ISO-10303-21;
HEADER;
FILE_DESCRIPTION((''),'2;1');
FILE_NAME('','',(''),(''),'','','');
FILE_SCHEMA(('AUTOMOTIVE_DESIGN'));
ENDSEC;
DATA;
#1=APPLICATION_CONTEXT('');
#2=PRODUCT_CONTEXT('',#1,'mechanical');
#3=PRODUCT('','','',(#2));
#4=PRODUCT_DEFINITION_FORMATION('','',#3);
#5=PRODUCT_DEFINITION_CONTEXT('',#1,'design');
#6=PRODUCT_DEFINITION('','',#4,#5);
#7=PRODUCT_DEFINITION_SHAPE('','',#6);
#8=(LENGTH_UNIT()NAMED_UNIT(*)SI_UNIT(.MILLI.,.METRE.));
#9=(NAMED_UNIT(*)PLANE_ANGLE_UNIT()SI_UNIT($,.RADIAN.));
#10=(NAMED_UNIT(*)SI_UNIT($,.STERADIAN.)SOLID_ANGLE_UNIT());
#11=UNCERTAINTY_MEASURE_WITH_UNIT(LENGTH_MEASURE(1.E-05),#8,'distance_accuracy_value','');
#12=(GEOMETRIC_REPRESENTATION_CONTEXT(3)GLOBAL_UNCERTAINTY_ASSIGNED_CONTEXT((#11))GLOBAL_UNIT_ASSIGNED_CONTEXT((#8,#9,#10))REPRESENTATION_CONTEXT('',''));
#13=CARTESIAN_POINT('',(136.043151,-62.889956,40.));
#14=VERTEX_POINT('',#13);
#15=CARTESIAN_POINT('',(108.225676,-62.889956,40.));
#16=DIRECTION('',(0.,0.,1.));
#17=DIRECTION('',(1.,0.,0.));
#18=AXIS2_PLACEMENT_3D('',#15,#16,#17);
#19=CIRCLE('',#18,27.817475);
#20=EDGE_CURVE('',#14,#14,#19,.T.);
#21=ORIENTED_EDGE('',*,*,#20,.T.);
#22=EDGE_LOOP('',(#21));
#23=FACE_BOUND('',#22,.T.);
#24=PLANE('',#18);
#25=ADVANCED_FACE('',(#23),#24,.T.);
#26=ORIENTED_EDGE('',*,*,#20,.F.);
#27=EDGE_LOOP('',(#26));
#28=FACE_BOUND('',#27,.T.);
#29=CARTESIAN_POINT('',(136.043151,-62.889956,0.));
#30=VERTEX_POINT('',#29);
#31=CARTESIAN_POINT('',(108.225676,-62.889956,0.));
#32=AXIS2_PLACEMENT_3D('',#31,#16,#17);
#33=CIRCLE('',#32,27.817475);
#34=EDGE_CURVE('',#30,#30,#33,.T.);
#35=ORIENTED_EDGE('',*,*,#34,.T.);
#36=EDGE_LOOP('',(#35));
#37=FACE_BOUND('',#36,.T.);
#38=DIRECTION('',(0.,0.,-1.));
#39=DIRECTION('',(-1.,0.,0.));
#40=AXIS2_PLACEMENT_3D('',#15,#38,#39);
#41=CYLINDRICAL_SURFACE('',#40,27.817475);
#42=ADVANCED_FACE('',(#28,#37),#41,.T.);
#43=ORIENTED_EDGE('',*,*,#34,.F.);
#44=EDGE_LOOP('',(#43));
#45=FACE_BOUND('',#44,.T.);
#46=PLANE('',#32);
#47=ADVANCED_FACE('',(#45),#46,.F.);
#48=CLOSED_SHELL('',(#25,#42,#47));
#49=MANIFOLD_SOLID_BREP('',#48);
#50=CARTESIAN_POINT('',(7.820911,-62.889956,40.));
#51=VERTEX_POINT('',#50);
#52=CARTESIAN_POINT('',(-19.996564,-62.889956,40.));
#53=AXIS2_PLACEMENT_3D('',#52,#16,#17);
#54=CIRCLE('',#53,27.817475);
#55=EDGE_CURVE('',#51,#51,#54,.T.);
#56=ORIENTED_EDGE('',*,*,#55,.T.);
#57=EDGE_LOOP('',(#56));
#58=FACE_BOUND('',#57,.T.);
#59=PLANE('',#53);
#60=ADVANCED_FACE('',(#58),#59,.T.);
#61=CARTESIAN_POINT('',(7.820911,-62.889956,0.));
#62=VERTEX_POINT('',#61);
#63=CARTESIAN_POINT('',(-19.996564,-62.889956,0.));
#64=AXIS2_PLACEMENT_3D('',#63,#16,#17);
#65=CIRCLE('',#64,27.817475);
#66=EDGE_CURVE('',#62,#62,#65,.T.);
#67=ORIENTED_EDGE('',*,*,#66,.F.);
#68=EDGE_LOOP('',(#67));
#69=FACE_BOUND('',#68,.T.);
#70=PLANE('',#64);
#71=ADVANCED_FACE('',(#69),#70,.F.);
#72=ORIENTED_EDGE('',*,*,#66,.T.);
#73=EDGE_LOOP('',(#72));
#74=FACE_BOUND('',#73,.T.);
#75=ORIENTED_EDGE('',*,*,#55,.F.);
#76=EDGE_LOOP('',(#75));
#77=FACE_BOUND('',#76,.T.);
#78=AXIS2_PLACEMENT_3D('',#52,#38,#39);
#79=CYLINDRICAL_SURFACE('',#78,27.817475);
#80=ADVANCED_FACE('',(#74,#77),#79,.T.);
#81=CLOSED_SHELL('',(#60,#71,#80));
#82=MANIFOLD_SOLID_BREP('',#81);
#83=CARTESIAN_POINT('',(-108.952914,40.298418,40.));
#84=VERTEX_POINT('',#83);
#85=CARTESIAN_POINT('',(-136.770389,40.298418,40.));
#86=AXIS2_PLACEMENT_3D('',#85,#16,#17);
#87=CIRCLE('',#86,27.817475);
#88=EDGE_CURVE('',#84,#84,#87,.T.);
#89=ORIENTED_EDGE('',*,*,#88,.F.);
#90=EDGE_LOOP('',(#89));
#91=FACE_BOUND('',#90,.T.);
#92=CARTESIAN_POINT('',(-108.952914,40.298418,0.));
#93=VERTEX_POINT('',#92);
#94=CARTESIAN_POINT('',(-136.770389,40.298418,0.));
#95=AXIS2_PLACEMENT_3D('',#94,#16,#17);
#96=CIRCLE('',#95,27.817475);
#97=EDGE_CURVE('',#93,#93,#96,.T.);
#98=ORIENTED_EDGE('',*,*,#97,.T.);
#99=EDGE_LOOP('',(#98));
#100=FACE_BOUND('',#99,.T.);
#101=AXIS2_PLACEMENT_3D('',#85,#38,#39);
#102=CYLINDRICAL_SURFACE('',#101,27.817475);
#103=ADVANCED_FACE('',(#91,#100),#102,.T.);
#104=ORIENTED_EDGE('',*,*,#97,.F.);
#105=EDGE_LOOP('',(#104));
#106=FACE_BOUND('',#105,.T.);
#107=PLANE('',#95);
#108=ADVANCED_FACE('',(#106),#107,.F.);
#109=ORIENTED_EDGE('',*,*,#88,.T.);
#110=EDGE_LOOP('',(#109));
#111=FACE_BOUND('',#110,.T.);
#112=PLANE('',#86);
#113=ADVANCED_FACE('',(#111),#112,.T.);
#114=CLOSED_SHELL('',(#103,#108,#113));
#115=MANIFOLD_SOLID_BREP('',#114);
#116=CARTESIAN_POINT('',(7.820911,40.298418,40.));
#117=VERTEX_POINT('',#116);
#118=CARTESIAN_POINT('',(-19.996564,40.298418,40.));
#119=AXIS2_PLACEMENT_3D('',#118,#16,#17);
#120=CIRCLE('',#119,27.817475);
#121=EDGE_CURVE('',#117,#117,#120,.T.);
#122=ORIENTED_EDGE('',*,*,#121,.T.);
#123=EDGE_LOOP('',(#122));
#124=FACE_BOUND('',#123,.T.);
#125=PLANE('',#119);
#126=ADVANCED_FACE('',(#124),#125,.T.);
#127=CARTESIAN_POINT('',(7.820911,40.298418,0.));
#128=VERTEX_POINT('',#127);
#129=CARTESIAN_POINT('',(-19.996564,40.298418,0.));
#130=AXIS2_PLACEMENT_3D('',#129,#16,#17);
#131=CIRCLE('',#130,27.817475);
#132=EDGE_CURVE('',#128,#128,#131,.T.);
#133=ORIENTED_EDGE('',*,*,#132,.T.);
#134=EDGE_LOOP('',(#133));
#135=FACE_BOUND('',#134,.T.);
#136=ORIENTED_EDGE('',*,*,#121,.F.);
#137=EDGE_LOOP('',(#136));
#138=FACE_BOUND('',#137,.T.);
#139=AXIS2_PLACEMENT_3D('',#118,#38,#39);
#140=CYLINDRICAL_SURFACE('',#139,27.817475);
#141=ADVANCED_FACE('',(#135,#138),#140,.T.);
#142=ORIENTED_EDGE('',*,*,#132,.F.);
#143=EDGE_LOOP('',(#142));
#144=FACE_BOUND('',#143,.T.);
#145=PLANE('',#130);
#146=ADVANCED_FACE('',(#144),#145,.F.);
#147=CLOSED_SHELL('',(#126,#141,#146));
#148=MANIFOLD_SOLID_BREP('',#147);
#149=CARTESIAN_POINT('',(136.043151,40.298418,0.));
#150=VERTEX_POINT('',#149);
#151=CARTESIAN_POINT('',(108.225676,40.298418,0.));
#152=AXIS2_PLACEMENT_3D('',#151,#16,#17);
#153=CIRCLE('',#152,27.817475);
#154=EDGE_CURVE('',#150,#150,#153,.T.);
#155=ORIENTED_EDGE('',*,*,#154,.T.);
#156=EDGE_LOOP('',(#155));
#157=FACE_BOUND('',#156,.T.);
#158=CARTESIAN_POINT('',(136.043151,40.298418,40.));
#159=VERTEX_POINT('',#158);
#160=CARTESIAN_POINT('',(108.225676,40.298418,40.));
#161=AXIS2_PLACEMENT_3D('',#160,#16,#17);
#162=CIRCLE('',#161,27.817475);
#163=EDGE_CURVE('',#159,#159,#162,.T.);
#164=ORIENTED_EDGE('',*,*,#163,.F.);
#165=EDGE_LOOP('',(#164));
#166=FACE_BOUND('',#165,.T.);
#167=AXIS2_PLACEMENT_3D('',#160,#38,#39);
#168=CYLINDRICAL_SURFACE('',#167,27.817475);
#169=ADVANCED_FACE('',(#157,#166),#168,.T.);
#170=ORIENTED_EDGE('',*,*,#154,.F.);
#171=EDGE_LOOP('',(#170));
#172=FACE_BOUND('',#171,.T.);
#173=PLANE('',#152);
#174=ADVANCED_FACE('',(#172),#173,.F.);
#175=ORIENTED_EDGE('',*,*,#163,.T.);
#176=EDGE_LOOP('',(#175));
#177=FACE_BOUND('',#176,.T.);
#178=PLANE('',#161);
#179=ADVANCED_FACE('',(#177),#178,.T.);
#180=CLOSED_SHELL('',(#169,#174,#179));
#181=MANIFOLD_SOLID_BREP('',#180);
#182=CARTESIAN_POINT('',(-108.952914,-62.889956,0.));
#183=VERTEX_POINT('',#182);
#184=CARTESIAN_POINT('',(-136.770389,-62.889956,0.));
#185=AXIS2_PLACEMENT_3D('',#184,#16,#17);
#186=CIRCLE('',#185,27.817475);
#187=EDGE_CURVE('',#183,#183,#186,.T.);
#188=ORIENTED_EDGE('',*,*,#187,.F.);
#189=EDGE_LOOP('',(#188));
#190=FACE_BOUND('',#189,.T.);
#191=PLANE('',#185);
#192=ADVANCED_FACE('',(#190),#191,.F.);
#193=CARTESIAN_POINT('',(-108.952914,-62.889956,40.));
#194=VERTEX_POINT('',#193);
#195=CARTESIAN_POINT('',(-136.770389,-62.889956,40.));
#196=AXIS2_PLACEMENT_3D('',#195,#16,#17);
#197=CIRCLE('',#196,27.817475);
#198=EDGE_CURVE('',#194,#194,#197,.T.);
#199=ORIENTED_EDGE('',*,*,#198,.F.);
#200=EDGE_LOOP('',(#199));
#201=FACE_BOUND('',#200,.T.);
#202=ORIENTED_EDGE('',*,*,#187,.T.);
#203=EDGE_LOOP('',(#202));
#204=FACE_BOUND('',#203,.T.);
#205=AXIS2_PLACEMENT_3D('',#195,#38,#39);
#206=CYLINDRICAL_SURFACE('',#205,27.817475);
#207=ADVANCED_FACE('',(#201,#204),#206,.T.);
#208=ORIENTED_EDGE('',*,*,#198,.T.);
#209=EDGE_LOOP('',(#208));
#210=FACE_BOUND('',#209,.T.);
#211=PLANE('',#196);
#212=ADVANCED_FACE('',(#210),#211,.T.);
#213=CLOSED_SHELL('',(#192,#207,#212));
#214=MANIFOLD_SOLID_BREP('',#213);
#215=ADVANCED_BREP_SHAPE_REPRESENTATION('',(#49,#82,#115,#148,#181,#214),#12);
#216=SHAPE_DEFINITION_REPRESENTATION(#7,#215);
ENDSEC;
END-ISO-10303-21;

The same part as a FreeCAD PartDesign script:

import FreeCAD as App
import Part
import Sketcher

V = App.Vector
Q = App.Units.Quantity

doc = App.newDocument("Part")
body = doc.addObject("PartDesign::Body", "Body")

# Sketch on XY plane
sketch1 = body.newObject("Sketcher::SketchObject", "Sketch")
sketch1.AttachmentSupport = (doc.getObject("XY_Plane"), [""])
sketch1.MapMode = "FlatFace"
sketch1.addGeometry(Part.Circle(V(-136.770389, 40.298418, 0), V(0, 0, 1), 27.817475), False)
sketch1.addConstraint(Sketcher.Constraint("Diameter", 0, Q("55.63495 mm")))
sketch1.addConstraint(Sketcher.Constraint("DistanceX", 0, 3, -1, 1, Q("136.770389 mm")))
sketch1.addConstraint(Sketcher.Constraint("DistanceY", -1, 1, 0, 3, Q("40.298418 mm")))
pad1 = body.newObject("PartDesign::Pad", "Pad")
pad1.Profile = sketch1
pad1.Length = 40
body2 = doc.addObject("PartDesign::Body", "Body001")

# Sketch on XY plane
sketch2 = body2.newObject("Sketcher::SketchObject", "Sketch001")
sketch2.AttachmentSupport = (doc.getObject("XY_Plane001"), [""])
sketch2.MapMode = "FlatFace"
sketch2.addGeometry(Part.Circle(V(-19.996564, 40.298418, 0), V(0, 0, 1), 27.817475), False)
sketch2.addConstraint(Sketcher.Constraint("Diameter", 0, Q("55.63495 mm")))
sketch2.addConstraint(Sketcher.Constraint("DistanceY", -1, 1, 0, 3, Q("40.298418 mm")))
sketch2.addConstraint(Sketcher.Constraint("DistanceX", 0, 3, -1, 1, Q("19.996564 mm")))
pad2 = body2.newObject("PartDesign::Pad", "Pad001")
pad2.Profile = sketch2
pad2.Length = 40
body3 = doc.addObject("PartDesign::Body", "Body002")

# Sketch on XY plane
sketch3 = body3.newObject("Sketcher::SketchObject", "Sketch002")
sketch3.AttachmentSupport = (doc.getObject("XY_Plane002"), [""])
sketch3.MapMode = "FlatFace"
sketch3.addGeometry(Part.Circle(V(108.225676, 40.298418, 0), V(0, 0, 1), 27.817475), False)
sketch3.addConstraint(Sketcher.Constraint("Diameter", 0, Q("55.63495 mm")))
sketch3.addConstraint(Sketcher.Constraint("DistanceY", -1, 1, 0, 3, Q("40.298418 mm")))
sketch3.addConstraint(Sketcher.Constraint("DistanceX", -1, 1, 0, 3, Q("108.225676 mm")))
pad3 = body3.newObject("PartDesign::Pad", "Pad002")
pad3.Profile = sketch3
pad3.Length = 40
body4 = doc.addObject("PartDesign::Body", "Body003")

# Sketch on XY plane
sketch4 = body4.newObject("Sketcher::SketchObject", "Sketch003")
sketch4.AttachmentSupport = (doc.getObject("XY_Plane003"), [""])
sketch4.MapMode = "FlatFace"
sketch4.addGeometry(Part.Circle(V(-136.770389, -62.889956, 0), V(0, 0, 1), 27.817475), False)
sketch4.addConstraint(Sketcher.Constraint("Diameter", 0, Q("55.63495 mm")))
sketch4.addConstraint(Sketcher.Constraint("DistanceX", 0, 3, -1, 1, Q("136.770389 mm")))
sketch4.addConstraint(Sketcher.Constraint("DistanceY", 0, 3, -1, 1, Q("62.889956 mm")))
pad4 = body4.newObject("PartDesign::Pad", "Pad003")
pad4.Profile = sketch4
pad4.Length = 40
body5 = doc.addObject("PartDesign::Body", "Body004")

# Sketch on XY plane
sketch5 = body5.newObject("Sketcher::SketchObject", "Sketch004")
sketch5.AttachmentSupport = (doc.getObject("XY_Plane004"), [""])
sketch5.MapMode = "FlatFace"
sketch5.addGeometry(Part.Circle(V(-19.996564, -62.889956, 0), V(0, 0, 1), 27.817475), False)
sketch5.addConstraint(Sketcher.Constraint("Diameter", 0, Q("55.63495 mm")))
sketch5.addConstraint(Sketcher.Constraint("DistanceX", 0, 3, -1, 1, Q("19.996564 mm")))
sketch5.addConstraint(Sketcher.Constraint("DistanceY", 0, 3, -1, 1, Q("62.889956 mm")))
pad5 = body5.newObject("PartDesign::Pad", "Pad004")
pad5.Profile = sketch5
pad5.Length = 40
body6 = doc.addObject("PartDesign::Body", "Body005")

# Sketch on XY plane
sketch6 = body6.newObject("Sketcher::SketchObject", "Sketch005")
sketch6.AttachmentSupport = (doc.getObject("XY_Plane005"), [""])
sketch6.MapMode = "FlatFace"
sketch6.addGeometry(Part.Circle(V(108.225676, -62.889956, 0), V(0, 0, 1), 27.817475), False)
sketch6.addConstraint(Sketcher.Constraint("Diameter", 0, Q("55.63495 mm")))
sketch6.addConstraint(Sketcher.Constraint("DistanceX", -1, 1, 0, 3, Q("108.225676 mm")))
sketch6.addConstraint(Sketcher.Constraint("DistanceY", 0, 3, -1, 1, Q("62.889956 mm")))
pad6 = body6.newObject("PartDesign::Pad", "Pad005")
pad6.Profile = sketch6
pad6.Length = 40

doc.recompute()
